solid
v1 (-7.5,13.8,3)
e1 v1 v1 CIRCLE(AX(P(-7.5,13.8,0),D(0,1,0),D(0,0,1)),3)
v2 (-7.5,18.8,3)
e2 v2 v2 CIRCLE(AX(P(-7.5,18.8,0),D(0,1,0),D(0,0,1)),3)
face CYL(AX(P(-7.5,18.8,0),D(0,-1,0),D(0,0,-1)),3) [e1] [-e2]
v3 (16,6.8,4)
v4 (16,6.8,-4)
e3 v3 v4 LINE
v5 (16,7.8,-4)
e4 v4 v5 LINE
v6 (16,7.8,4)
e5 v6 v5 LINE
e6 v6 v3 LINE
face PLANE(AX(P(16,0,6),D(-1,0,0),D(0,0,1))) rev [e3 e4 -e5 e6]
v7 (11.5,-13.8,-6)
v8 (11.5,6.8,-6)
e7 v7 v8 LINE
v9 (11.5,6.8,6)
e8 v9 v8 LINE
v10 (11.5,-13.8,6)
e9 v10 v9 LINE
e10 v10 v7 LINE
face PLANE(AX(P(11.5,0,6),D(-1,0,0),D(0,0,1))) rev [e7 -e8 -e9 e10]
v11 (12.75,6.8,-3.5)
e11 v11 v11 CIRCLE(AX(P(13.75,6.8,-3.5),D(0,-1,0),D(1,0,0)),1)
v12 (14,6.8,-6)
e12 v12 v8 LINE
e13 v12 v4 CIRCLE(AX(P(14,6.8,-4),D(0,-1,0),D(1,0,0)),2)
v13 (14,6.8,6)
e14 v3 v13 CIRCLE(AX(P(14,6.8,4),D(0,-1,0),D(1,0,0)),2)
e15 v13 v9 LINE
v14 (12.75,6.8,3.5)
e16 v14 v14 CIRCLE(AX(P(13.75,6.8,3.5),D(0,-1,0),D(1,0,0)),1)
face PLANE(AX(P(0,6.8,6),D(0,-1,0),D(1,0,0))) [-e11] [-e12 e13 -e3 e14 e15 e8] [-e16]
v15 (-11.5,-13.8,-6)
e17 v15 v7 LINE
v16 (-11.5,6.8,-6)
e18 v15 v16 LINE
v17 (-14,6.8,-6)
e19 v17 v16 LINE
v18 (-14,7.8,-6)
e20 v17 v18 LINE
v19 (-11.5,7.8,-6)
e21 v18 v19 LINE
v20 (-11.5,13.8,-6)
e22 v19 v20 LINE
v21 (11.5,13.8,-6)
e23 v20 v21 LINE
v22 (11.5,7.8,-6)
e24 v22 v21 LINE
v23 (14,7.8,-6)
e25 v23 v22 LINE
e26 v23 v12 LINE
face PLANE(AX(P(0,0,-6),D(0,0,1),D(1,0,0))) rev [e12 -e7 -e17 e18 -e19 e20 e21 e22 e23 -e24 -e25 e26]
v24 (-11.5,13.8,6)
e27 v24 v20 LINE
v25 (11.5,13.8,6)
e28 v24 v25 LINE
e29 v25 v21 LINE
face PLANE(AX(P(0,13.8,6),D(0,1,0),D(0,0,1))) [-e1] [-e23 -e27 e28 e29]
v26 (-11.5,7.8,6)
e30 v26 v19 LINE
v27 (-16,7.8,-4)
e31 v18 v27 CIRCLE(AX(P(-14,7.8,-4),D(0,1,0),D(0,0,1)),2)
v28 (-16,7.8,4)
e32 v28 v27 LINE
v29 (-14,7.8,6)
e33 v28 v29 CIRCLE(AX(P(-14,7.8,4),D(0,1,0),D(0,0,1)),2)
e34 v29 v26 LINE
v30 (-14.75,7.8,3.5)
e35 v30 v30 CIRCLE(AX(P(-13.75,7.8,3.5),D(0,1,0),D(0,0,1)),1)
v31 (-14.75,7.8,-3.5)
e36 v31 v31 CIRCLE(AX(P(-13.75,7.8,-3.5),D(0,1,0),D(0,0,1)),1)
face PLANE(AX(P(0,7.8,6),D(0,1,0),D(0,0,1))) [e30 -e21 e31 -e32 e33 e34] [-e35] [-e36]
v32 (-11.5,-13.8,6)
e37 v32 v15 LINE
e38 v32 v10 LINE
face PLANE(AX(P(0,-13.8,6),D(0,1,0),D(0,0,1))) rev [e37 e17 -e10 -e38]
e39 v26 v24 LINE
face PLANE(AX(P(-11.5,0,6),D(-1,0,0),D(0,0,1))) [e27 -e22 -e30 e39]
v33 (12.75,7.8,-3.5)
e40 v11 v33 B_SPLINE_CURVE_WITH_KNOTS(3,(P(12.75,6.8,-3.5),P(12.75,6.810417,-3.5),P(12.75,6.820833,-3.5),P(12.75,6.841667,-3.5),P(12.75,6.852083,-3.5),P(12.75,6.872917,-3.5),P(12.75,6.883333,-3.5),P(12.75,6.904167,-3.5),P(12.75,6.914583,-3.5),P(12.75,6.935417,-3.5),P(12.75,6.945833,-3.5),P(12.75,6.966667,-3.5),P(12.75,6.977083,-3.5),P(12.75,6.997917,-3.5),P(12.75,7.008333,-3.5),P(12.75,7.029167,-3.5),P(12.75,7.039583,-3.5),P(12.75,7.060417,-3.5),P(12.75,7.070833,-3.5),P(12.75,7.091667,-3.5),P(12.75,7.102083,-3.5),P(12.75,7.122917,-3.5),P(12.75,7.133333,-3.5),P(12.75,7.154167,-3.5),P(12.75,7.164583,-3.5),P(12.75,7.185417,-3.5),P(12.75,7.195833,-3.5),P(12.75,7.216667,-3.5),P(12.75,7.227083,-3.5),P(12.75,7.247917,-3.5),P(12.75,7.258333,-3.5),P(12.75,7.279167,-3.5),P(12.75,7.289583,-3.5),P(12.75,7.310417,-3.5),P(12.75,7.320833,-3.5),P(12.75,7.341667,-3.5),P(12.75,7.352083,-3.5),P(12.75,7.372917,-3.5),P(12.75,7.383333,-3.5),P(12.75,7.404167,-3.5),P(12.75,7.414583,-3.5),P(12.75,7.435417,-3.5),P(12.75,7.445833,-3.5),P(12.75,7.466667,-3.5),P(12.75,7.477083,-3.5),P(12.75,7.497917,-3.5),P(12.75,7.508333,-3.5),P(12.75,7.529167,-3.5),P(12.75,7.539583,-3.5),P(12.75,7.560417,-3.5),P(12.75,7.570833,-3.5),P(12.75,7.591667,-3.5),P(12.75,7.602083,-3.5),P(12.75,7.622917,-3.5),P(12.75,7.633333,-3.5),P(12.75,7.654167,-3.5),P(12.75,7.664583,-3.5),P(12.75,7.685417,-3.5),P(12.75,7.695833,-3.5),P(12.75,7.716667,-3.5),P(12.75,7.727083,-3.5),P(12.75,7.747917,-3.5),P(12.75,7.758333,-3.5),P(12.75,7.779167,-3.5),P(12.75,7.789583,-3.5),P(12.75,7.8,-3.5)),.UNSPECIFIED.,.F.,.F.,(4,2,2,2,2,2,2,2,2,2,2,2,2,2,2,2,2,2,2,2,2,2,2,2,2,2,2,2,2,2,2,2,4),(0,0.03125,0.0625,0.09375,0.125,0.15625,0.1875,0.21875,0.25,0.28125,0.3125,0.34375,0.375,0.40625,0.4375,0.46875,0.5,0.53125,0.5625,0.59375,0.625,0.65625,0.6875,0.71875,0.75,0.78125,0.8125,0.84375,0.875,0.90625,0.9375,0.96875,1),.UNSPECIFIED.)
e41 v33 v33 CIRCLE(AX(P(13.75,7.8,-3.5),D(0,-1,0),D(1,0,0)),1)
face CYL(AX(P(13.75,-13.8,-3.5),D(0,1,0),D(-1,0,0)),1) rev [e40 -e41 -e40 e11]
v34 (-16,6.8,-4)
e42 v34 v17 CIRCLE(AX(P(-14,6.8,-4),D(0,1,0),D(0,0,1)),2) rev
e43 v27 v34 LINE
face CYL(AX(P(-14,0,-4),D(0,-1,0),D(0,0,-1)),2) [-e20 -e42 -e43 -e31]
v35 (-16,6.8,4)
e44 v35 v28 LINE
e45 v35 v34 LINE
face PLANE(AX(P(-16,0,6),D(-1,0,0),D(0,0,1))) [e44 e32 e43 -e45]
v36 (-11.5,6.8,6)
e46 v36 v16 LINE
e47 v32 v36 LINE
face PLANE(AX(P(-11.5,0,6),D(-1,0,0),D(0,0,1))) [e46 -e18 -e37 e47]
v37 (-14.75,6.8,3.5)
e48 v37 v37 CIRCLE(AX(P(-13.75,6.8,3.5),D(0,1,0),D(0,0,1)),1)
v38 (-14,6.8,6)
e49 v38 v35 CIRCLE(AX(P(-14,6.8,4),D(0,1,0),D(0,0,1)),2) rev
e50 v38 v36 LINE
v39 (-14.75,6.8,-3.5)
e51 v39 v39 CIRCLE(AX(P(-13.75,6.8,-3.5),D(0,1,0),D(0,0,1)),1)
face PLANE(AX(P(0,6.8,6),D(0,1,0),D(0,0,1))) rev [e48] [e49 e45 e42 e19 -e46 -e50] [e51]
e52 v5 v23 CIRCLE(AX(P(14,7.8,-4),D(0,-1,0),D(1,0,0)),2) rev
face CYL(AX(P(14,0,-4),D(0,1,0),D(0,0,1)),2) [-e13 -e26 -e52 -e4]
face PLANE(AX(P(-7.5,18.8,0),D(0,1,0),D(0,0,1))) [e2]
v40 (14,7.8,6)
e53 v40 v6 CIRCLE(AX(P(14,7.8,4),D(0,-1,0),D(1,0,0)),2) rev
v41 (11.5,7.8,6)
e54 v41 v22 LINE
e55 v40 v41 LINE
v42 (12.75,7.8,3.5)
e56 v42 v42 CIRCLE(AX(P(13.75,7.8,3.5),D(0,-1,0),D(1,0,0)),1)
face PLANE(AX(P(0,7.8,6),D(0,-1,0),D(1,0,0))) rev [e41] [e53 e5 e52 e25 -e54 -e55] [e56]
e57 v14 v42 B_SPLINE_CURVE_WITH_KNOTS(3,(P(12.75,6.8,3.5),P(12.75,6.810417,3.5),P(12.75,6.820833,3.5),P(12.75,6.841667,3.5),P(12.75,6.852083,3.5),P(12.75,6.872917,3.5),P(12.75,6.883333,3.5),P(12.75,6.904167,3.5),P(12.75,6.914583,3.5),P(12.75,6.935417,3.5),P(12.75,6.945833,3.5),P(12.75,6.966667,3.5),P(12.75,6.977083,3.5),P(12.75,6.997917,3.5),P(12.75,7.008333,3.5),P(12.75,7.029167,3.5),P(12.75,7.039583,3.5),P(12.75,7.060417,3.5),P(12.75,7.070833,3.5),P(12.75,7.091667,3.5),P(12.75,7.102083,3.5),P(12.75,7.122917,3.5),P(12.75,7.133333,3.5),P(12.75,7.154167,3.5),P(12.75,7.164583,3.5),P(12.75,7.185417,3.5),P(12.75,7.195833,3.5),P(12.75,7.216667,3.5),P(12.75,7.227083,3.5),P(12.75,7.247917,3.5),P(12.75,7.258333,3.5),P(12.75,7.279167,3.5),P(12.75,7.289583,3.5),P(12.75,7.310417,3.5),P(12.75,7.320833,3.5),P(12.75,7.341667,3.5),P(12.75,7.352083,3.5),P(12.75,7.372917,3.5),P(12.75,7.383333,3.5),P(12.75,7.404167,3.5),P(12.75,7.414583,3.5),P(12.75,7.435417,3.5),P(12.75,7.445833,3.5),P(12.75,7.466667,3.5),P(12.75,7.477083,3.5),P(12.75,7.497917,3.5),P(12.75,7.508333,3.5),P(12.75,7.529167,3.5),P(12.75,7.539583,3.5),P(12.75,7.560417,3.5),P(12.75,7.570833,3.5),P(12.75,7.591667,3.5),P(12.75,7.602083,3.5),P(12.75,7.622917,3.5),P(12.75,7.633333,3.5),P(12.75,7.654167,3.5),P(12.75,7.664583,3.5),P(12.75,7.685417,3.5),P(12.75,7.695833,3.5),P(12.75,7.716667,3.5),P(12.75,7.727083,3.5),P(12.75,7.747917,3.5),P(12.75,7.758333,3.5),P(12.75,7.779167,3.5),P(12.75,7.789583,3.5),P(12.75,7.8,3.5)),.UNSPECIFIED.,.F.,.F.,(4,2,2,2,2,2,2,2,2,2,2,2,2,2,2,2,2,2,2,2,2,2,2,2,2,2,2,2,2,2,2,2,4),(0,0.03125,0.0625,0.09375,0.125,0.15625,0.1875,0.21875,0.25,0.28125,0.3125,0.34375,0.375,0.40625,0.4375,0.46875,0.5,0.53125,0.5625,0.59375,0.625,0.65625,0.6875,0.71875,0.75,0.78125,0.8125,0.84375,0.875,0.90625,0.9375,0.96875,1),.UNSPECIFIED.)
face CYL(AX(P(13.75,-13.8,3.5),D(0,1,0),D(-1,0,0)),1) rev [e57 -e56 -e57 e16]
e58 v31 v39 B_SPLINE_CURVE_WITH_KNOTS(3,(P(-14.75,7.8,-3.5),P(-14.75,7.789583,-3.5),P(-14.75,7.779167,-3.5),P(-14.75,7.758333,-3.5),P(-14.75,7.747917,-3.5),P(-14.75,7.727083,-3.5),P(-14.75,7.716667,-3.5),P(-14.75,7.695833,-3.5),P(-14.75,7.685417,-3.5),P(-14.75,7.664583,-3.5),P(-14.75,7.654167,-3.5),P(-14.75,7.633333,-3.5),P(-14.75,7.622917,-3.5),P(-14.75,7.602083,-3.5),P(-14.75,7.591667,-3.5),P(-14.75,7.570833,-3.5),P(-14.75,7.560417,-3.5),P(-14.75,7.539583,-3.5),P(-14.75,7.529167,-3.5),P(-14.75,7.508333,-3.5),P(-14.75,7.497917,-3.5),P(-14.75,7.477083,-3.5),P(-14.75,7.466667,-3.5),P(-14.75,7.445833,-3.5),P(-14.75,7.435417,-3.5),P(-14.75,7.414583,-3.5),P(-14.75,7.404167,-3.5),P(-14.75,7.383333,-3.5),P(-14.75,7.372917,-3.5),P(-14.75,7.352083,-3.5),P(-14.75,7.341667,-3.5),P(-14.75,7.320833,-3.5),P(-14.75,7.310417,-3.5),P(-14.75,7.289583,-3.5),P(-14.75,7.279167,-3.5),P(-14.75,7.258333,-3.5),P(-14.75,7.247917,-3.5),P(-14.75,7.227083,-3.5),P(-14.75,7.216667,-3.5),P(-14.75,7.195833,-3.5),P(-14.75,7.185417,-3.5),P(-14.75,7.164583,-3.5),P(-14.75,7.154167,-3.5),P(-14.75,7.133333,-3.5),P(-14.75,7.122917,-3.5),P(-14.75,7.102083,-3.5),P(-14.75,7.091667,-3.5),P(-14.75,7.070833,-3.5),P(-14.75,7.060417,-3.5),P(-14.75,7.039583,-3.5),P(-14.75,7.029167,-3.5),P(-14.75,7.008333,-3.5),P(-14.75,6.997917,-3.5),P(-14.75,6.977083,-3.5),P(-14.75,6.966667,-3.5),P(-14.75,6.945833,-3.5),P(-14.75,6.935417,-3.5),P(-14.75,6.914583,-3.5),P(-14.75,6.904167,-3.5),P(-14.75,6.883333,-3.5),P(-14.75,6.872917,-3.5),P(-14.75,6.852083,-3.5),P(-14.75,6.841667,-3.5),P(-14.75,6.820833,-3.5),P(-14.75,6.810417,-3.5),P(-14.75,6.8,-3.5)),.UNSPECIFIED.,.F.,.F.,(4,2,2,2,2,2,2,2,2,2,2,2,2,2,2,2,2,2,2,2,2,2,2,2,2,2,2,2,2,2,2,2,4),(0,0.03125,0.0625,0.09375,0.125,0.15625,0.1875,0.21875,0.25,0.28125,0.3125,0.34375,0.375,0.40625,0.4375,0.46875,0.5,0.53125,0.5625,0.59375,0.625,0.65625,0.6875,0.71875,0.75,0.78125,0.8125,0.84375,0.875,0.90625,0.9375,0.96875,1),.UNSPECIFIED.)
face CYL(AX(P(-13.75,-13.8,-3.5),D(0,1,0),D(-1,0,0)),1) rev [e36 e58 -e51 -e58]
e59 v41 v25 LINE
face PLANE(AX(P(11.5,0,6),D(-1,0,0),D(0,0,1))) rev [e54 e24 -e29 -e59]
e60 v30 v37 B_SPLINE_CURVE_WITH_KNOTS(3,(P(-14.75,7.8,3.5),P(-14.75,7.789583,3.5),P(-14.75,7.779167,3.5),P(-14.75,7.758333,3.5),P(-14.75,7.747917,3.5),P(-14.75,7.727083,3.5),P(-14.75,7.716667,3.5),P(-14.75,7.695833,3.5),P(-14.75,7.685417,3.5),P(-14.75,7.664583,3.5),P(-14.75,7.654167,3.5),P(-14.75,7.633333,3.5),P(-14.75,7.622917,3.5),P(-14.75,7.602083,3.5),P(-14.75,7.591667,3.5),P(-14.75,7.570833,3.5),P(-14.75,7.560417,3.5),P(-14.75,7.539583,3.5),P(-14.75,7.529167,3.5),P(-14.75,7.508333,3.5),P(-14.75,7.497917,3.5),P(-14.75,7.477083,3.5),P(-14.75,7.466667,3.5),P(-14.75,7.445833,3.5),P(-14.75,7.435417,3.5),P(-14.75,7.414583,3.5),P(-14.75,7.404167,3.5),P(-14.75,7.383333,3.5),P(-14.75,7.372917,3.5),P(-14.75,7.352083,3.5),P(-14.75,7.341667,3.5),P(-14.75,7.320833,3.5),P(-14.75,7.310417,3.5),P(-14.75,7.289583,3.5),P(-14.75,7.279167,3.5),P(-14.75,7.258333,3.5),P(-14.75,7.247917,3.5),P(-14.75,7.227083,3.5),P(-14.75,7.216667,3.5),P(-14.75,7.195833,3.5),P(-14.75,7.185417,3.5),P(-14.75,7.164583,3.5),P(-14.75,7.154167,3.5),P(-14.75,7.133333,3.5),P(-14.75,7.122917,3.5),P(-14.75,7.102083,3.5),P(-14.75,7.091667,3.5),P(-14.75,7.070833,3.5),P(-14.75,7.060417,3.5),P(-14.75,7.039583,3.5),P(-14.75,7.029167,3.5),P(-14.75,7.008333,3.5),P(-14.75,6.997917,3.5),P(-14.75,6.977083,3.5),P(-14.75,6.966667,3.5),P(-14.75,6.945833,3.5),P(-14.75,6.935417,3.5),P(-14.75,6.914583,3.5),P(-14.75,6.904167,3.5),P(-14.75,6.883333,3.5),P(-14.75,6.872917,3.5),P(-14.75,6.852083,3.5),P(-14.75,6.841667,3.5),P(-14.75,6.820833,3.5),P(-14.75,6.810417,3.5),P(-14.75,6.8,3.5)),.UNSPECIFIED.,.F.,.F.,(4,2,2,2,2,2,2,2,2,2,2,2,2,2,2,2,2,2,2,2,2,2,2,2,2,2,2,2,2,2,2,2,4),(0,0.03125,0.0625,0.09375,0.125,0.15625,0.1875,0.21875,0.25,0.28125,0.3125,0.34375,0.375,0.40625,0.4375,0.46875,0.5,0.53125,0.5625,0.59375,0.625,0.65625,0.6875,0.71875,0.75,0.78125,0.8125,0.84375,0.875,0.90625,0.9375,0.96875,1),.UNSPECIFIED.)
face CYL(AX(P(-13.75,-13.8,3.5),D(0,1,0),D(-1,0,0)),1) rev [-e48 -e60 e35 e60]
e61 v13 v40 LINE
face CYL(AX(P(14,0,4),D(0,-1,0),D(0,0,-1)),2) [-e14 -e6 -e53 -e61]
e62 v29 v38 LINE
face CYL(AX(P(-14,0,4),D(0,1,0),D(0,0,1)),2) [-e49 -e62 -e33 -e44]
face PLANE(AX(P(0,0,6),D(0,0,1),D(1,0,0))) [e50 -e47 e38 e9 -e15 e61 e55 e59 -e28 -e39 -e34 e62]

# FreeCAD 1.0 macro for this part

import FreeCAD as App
import Part
import Sketcher
Q = App.Units.Quantity


def edges_at(feature, points):
    """Names of the edges that pass closest to the given points."""
    edges = feature.Shape.Edges
    near = lambda p: min(range(len(edges)), key=lambda i: edges[i].distToShape(Part.Vertex(*p))[0])
    return sorted({f"Edge{near(p) + 1}" for p in points})

doc = App.newDocument("Part")
body = doc.addObject("PartDesign::Body", "Body")

sketch1 = body.newObject("Sketcher::SketchObject", "Sketch")
sketch1.AttachmentSupport = (doc.getObject("XY_Plane"), [""])
sketch1.MapMode = "FlatFace"
sketch1.addGeometry([
    Part.LineSegment(App.Vector(-11.5, 6.8, 0), App.Vector(-11.5, -13.8, 0)),
    Part.LineSegment(App.Vector(-11.5, -13.8, 0), App.Vector(11.5, -13.8, 0)),
    Part.LineSegment(App.Vector(11.5, -13.8, 0), App.Vector(11.5, 6.8, 0)),
    Part.LineSegment(App.Vector(11.5, 6.8, 0), App.Vector(16, 6.8, 0)),
    Part.LineSegment(App.Vector(16, 6.8, 0), App.Vector(16, 7.8, 0)),
    Part.LineSegment(App.Vector(16, 7.8, 0), App.Vector(11.5, 7.8, 0)),
    Part.LineSegment(App.Vector(11.5, 7.8, 0), App.Vector(11.5, 13.8, 0)),
    Part.LineSegment(App.Vector(11.5, 13.8, 0), App.Vector(-11.5, 13.8, 0)),
    Part.LineSegment(App.Vector(-11.5, 13.8, 0), App.Vector(-11.5, 7.8, 0)),
    Part.LineSegment(App.Vector(-11.5, 7.8, 0), App.Vector(-16, 7.8, 0)),
    Part.LineSegment(App.Vector(-16, 7.8, 0), App.Vector(-16, 6.8, 0)),
    Part.LineSegment(App.Vector(-16, 6.8, 0), App.Vector(-11.5, 6.8, 0)),
], False)
sketch1.addConstraint([
    Sketcher.Constraint("Coincident", 0, 2, 1, 1),
    Sketcher.Constraint("Coincident", 1, 2, 2, 1),
    Sketcher.Constraint("Coincident", 2, 2, 3, 1),
    Sketcher.Constraint("Coincident", 3, 2, 4, 1),
    Sketcher.Constraint("Coincident", 4, 2, 5, 1),
    Sketcher.Constraint("Coincident", 5, 2, 6, 1),
    Sketcher.Constraint("Coincident", 6, 2, 7, 1),
    Sketcher.Constraint("Coincident", 7, 2, 8, 1),
    Sketcher.Constraint("Coincident", 8, 2, 9, 1),
    Sketcher.Constraint("Coincident", 9, 2, 10, 1),
    Sketcher.Constraint("Coincident", 10, 2, 11, 1),
    Sketcher.Constraint("Coincident", 11, 2, 0, 1),
    Sketcher.Constraint("Vertical", 0),
    Sketcher.Constraint("Horizontal", 1),
    Sketcher.Constraint("Vertical", 2),
    Sketcher.Constraint("Horizontal", 3),
    Sketcher.Constraint("Vertical", 4),
    Sketcher.Constraint("Horizontal", 5),
    Sketcher.Constraint("Vertical", 6),
    Sketcher.Constraint("Horizontal", 7),
    Sketcher.Constraint("Vertical", 8),
    Sketcher.Constraint("Horizontal", 9),
    Sketcher.Constraint("Vertical", 10),
    Sketcher.Constraint("Horizontal", 11),
    Sketcher.Constraint("Symmetric", 0, 2, 6, 2, -1, 1),
    Sketcher.Constraint("Symmetric", 5, 2, 8, 2, -2),
    Sketcher.Constraint("Symmetric", 3, 2, 10, 2, -2),
    Sketcher.Constraint("Vertical", 2, 2, 5, 2),
    Sketcher.Constraint("DistanceX", 1, 1, 1, 2, Q("23 mm")),
    Sketcher.Constraint("DistanceY", 4, 1, 4, 2, Q("1 mm")),
    Sketcher.Constraint("DistanceY", 6, 1, 6, 2, Q("6 mm")),
    Sketcher.Constraint("DistanceX", 3, 1, 3, 2, Q("4.5 mm")),
    Sketcher.Constraint("DistanceY", 0, 2, 0, 1, Q("20.6 mm")),
])
pad1 = body.newObject("PartDesign::Pad", "Pad")
pad1.Profile = sketch1
pad1.Length = 12
pad1.Midplane = True

sketch2 = body.newObject("Sketcher::SketchObject", "Sketch001")
sketch2.AttachmentSupport = (doc.getObject("XZ_Plane"), [""])
sketch2.MapMode = "FlatFace"
sketch2.AttachmentOffset = App.Placement(App.Vector(0, 0, -13.8), App.Rotation())
sketch2.addGeometry(Part.Circle(App.Vector(-7.5, 0, 0), App.Vector(0, 0, 1), 3), False)
sketch2.addConstraint([
    Sketcher.Constraint("PointOnObject", 0, 3, -1),
    Sketcher.Constraint("Diameter", 0, Q("6 mm")),
    Sketcher.Constraint("DistanceX", 0, 3, -1, 1, Q("7.5 mm")),
])
pad2 = body.newObject("PartDesign::Pad", "Pad001")
pad2.Profile = sketch2
pad2.Length = 5
pad2.Reversed = True

sketch3 = body.newObject("Sketcher::SketchObject", "Sketch002")
sketch3.AttachmentSupport = (doc.getObject("XZ_Plane"), [""])
sketch3.MapMode = "FlatFace"
sketch3.AttachmentOffset = App.Placement(App.Vector(0, 0, -7.8), App.Rotation())
sketch3.addGeometry([
    Part.Circle(App.Vector(-13.75, -3.5, 0), App.Vector(0, 0, 1), 1),
    Part.Circle(App.Vector(-13.75, 3.5, 0), App.Vector(0, 0, 1), 1),
    Part.Circle(App.Vector(13.75, 3.5, 0), App.Vector(0, 0, 1), 1),
    Part.Circle(App.Vector(13.75, -3.5, 0), App.Vector(0, 0, 1), 1),
], False)
sketch3.addConstraint([
    Sketcher.Constraint("Equal", 0, 1),
    Sketcher.Constraint("Equal", 1, 2),
    Sketcher.Constraint("Equal", 2, 3),
    Sketcher.Constraint("Symmetric", 0, 3, 2, 3, -1, 1),
    Sketcher.Constraint("Symmetric", 1, 3, 3, 3, -1, 1),
    Sketcher.Constraint("Symmetric", 1, 3, 2, 3, -2),
    Sketcher.Constraint("Diameter", 0, Q("2 mm")),
    Sketcher.Constraint("DistanceY", 0, 3, 1, 3, Q("7 mm")),
    Sketcher.Constraint("DistanceX", 1, 3, 2, 3, Q("27.5 mm")),
])
pocket1 = body.newObject("PartDesign::Pocket", "Pocket")
pocket1.Profile = sketch3
pocket1.Type = "ThroughAll"
pocket1.Midplane = True
doc.recompute()

fillet = body.newObject("PartDesign::Fillet", "Fillet")
fillet.Base = (pocket1, edges_at(pocket1, [
    (-16, 7.3, -6),
    (16, 7.3, -6),
    (16, 7.3, 6),
    (-16, 7.3, 6),
]))
fillet.Radius = 2

doc.recompute()
